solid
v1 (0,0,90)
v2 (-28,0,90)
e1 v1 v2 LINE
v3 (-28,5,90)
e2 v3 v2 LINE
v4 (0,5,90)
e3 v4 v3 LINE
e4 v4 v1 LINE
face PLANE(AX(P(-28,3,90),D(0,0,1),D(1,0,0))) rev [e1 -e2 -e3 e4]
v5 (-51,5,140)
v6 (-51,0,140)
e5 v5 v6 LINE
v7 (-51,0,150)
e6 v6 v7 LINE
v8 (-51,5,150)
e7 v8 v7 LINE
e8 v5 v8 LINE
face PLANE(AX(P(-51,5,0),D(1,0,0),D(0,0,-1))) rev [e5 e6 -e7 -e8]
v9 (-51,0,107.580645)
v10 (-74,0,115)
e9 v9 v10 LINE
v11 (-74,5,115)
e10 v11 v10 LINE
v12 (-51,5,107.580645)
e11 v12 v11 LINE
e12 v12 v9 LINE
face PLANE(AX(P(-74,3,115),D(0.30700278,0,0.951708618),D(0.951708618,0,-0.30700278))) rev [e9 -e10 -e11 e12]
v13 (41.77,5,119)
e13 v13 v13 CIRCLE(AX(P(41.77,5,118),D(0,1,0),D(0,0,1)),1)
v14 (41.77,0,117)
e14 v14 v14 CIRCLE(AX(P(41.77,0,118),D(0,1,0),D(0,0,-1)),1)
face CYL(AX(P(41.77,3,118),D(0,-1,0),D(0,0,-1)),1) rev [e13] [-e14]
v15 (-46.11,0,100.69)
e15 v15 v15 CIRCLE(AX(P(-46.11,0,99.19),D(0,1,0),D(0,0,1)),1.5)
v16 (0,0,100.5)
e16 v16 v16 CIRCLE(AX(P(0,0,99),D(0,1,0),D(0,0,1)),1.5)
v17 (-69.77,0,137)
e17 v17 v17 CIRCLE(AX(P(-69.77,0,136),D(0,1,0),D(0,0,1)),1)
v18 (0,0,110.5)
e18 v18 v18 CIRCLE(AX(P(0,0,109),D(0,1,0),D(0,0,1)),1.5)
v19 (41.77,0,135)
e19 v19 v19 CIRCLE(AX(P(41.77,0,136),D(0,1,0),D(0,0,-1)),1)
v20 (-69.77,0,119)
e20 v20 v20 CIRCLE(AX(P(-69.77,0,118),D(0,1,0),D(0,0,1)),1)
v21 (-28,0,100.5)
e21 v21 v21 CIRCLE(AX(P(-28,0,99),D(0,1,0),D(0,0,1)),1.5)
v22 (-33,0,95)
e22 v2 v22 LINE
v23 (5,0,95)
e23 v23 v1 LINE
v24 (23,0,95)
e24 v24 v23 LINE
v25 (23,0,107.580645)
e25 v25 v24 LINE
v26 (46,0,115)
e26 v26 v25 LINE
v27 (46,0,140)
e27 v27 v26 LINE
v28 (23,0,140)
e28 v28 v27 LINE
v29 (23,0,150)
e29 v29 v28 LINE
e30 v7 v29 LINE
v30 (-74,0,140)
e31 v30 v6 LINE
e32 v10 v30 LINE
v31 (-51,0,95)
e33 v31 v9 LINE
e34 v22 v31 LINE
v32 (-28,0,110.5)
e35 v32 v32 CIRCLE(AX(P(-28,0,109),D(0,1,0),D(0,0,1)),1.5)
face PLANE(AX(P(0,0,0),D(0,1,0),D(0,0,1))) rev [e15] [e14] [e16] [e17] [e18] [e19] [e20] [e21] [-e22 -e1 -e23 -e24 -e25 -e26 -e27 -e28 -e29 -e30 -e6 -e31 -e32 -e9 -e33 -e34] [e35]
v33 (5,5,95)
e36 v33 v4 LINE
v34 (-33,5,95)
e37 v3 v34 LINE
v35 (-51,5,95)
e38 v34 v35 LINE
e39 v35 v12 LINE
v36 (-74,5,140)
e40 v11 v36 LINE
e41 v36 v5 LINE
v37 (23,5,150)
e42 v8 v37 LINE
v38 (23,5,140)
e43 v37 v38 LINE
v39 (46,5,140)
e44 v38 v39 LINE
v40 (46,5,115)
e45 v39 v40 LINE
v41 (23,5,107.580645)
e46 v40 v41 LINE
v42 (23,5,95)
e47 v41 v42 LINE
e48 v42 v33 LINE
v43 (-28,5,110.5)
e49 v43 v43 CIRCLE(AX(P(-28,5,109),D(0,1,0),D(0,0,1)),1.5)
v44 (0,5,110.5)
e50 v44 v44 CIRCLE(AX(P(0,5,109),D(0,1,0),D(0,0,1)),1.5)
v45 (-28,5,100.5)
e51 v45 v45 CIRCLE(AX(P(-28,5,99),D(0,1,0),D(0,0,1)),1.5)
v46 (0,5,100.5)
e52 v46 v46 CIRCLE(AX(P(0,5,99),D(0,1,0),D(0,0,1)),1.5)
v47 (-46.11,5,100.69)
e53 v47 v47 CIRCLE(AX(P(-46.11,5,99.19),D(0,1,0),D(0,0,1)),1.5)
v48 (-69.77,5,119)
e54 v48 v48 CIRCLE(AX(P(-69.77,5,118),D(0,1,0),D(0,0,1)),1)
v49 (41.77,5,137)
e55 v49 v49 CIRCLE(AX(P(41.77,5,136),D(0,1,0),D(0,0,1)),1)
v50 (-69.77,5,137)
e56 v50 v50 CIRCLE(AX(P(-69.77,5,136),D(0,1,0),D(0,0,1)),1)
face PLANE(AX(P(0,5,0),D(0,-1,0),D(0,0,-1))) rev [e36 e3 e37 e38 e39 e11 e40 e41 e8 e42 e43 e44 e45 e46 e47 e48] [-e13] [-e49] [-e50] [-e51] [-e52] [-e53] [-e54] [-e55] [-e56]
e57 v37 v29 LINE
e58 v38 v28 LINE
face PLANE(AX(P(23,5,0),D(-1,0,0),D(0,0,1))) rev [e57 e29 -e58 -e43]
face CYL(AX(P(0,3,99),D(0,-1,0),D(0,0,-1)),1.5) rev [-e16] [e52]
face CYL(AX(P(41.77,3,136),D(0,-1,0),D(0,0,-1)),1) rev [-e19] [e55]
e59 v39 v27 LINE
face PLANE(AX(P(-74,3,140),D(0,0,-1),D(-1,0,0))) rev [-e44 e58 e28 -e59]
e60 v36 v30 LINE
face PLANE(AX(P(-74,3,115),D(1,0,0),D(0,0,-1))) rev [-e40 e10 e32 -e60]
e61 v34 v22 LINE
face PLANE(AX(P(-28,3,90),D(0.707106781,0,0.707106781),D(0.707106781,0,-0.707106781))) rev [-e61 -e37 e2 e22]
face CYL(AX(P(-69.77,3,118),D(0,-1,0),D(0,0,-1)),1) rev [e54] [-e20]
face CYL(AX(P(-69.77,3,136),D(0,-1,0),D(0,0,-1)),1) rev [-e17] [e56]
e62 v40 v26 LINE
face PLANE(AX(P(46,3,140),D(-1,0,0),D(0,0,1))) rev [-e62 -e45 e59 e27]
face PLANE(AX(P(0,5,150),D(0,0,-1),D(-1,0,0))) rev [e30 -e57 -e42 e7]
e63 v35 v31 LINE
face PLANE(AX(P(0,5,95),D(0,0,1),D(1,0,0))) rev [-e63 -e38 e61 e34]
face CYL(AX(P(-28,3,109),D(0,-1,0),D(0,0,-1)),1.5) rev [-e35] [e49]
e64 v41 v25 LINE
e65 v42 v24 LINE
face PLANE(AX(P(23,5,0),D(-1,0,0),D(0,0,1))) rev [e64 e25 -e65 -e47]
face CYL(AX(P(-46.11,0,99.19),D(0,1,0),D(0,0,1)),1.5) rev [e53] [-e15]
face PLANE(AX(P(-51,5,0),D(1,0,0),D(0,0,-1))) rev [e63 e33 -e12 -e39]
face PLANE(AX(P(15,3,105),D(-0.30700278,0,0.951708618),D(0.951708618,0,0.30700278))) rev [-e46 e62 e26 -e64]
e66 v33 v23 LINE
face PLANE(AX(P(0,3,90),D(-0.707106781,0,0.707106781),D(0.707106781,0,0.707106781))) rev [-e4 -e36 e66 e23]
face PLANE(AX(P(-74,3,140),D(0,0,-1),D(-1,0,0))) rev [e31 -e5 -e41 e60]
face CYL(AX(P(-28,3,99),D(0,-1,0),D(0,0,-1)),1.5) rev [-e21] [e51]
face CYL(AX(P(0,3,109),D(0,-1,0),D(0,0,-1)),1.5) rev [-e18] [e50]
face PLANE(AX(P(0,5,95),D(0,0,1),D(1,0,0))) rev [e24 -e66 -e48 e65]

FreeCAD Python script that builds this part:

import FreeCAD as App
import Part
import Sketcher

V = App.Vector

doc = App.newDocument("Part")
params = doc.addObject("Spreadsheet::Sheet", "Params")
for row, (alias, value) in enumerate([
    ("sketch1_diameter", "2 mm"),
    ("sketch1_diameter2", "3 mm"),
    ("sketch1_width", "120 mm"),
    ("sketch1_width2", "28 mm"),
    ("sketch1_height", "25 mm"),
    ("pad1_length", "3 mm"),
    ("sketch2_diameter", "2 mm"),
    ("sketch2_width", "23 mm"),
    ("sketch2_height", "25 mm"),
    ("pad2_length", "2 mm"),
    ("sketch3_diameter", "3 mm"),
    ("sketch3_width", "74 mm"),
    ("sketch3_width2", "18 mm"),
    ("sketch3_width3", "28 mm"),
    ("sketch3_height", "55 mm"),
    ("pad3_length", "5 mm"),
    ("sketch4_diameter", "3 mm"),
], start=1):
    params.set(f"A{row}", alias)
    params.set(f"B{row}", "=" + value)
    params.setAlias(f"B{row}", alias)

body = doc.addObject("PartDesign::Body", "Body")

sketch1 = body.newObject("Sketcher::SketchObject", "Sketch")
sketch1.AttachmentSupport = (doc.getObject("XZ_Plane"), [""])
sketch1.MapMode = "FlatFace"
sketch1.addGeometry([
    Part.LineSegment(V(-28, 90, 0), V(-43, 105, 0)),
    Part.LineSegment(V(-43, 105, 0), V(-74, 115, 0)),
    Part.LineSegment(V(-74, 115, 0), V(-74, 140, 0)),
    Part.LineSegment(V(-74, 140, 0), V(46, 140, 0)),
    Part.LineSegment(V(46, 140, 0), V(46, 115, 0)),
    Part.LineSegment(V(46, 115, 0), V(15, 105, 0)),
    Part.LineSegment(V(15, 105, 0), V(0, 90, 0)),
    Part.LineSegment(V(0, 90, 0), V(-28, 90, 0)),
    Part.Circle(V(-69.8, 136, 0), V(0, 0, 1), 1),
    Part.Circle(V(-69.8, 118, 0), V(0, 0, 1), 1),
    Part.Circle(V(41.8, 136, 0), V(0, 0, 1), 1),
    Part.Circle(V(41.8, 118, 0), V(0, 0, 1), 1),
    Part.Circle(V(-28, 109, 0), V(0, 0, 1), 1.5),
    Part.Circle(V(-28, 99, 0), V(0, 0, 1), 1.5),
    Part.Circle(V(0, 109, 0), V(0, 0, 1), 1.5),
    Part.Circle(V(0, 99, 0), V(0, 0, 1), 1.5),
], False)
sketch1.addConstraint([
    Sketcher.Constraint("Coincident", 0, 2, 1, 1),
    Sketcher.Constraint("Coincident", 1, 2, 2, 1),
    Sketcher.Constraint("Coincident", 2, 2, 3, 1),
    Sketcher.Constraint("Coincident", 3, 2, 4, 1),
    Sketcher.Constraint("Coincident", 4, 2, 5, 1),
    Sketcher.Constraint("Coincident", 5, 2, 6, 1),
    Sketcher.Constraint("Coincident", 6, 2, 7, 1),
    Sketcher.Constraint("Coincident", 7, 2, 0, 1),
    Sketcher.Constraint("Vertical", 2),
    Sketcher.Constraint("Horizontal", 3),
    Sketcher.Constraint("Vertical", 4),
    Sketcher.Constraint("Horizontal", 7),
    Sketcher.Constraint("Equal", 8, 9),
    Sketcher.Constraint("Equal", 9, 10),
    Sketcher.Constraint("Equal", 10, 11),
    Sketcher.Constraint("Equal", 12, 13),
    Sketcher.Constraint("Equal", 13, 14),
    Sketcher.Constraint("Equal", 14, 15),
    Sketcher.Constraint("PointOnObject", 14, 3, -2),
    Sketcher.Constraint("PointOnObject", 15, 3, -2),
    Sketcher.Constraint("PointOnObject", 6, 2, -2),
    Sketcher.Constraint("Perpendicular", 0, 6),
    Sketcher.Constraint("Horizontal", 8, 3, 10, 3),
    Sketcher.Constraint("Horizontal", 9, 3, 11, 3),
    Sketcher.Constraint("Horizontal", 12, 3, 14, 3),
    Sketcher.Constraint("Horizontal", 13, 3, 15, 3),
    Sketcher.Constraint("Horizontal", 1, 2, 4, 2),
    Sketcher.Constraint("Horizontal", 0, 2, 5, 2),
    Sketcher.Constraint("Vertical", 8, 3, 9, 3),
    Sketcher.Constraint("Vertical", 10, 3, 11, 3),
    Sketcher.Constraint("Vertical", 12, 3, 13, 3),
    Sketcher.Constraint("Vertical", 13, 3, 7, 2),
    Sketcher.Constraint("Equal", 1, 5),
    Sketcher.Constraint("Equal", 0, 6),
    Sketcher.Constraint("Diameter", 8, 2.0),
    Sketcher.Constraint("Diameter", 12, 3.0),
    Sketcher.Constraint("DistanceX", 3, 1, 3, 2, 120.0),
    Sketcher.Constraint("DistanceX", 7, 2, 7, 1, 28.0),
    Sketcher.Constraint("DistanceY", 2, 1, 2, 2, 25.0),
    Sketcher.Constraint("DistanceY", -1, 1, 8, 3, 136.0),
    Sketcher.Constraint("DistanceY", -1, 1, 9, 3, 118.0),
    Sketcher.Constraint("DistanceY", -1, 1, 12, 3, 109.0),
    Sketcher.Constraint("DistanceY", -1, 1, 13, 3, 99.0),
    Sketcher.Constraint("DistanceX", 0, 2, -1, 1, 43.0),
    Sketcher.Constraint("DistanceY", -1, 1, 0, 2, 105.0),
    Sketcher.Constraint("DistanceY", -1, 1, 1, 2, 115.0),
    Sketcher.Constraint("DistanceX", 8, 3, -1, 1, 69.77),
    Sketcher.Constraint("DistanceX", -1, 1, 10, 3, 41.77),
])
sketch1.setExpression("Constraints[34]", "Params.sketch1_diameter")
sketch1.setExpression("Constraints[35]", "Params.sketch1_diameter2")
sketch1.setExpression("Constraints[36]", "Params.sketch1_width")
sketch1.setExpression("Constraints[37]", "Params.sketch1_width2")
sketch1.setExpression("Constraints[38]", "Params.sketch1_height")
pad1 = body.newObject("PartDesign::Pad", "Pad")
pad1.Profile = sketch1
pad1.setExpression("Length", "Params.pad1_length")
pad1.Reversed = True

sketch2 = body.newObject("Sketcher::SketchObject", "Sketch001")
sketch2.AttachmentSupport = (doc.getObject("XZ_Plane"), [""])
sketch2.MapMode = "FlatFace"
sketch2.AttachmentOffset = App.Placement(V(0, 0, -3), App.Rotation())
sketch2.addGeometry([
    Part.LineSegment(V(-74, 115, 0), V(-74, 140, 0)),
    Part.LineSegment(V(-74, 140, 0), V(-51, 140, 0)),
    Part.LineSegment(V(-51, 140, 0), V(-51, 107.6, 0)),
    Part.LineSegment(V(-51, 107.6, 0), V(-74, 115, 0)),
    Part.Circle(V(-69.8, 136, 0), V(0, 0, 1), 1),
    Part.Circle(V(-69.8, 118, 0), V(0, 0, 1), 1),
    Part.LineSegment(V(46, 140, 0), V(46, 115, 0)),
    Part.LineSegment(V(46, 115, 0), V(23, 107.6, 0)),
    Part.LineSegment(V(23, 107.6, 0), V(23, 140, 0)),
    Part.LineSegment(V(23, 140, 0), V(46, 140, 0)),
    Part.Circle(V(41.8, 136, 0), V(0, 0, 1), 1),
    Part.Circle(V(41.8, 118, 0), V(0, 0, 1), 1),
], False)
sketch2.addConstraint([
    Sketcher.Constraint("Coincident", 0, 2, 1, 1),
    Sketcher.Constraint("Coincident", 1, 2, 2, 1),
    Sketcher.Constraint("Coincident", 2, 2, 3, 1),
    Sketcher.Constraint("Coincident", 3, 2, 0, 1),
    Sketcher.Constraint("Coincident", 6, 2, 7, 1),
    Sketcher.Constraint("Coincident", 7, 2, 8, 1),
    Sketcher.Constraint("Coincident", 8, 2, 9, 1),
    Sketcher.Constraint("Coincident", 9, 2, 6, 1),
    Sketcher.Constraint("Vertical", 0),
    Sketcher.Constraint("Horizontal", 1),
    Sketcher.Constraint("Vertical", 2),
    Sketcher.Constraint("Vertical", 6),
    Sketcher.Constraint("Vertical", 8),
    Sketcher.Constraint("Horizontal", 9),
    Sketcher.Constraint("Equal", 4, 5),
    Sketcher.Constraint("Equal", 5, 10),
    Sketcher.Constraint("Equal", 10, 11),
    Sketcher.Constraint("Horizontal", 4, 3, 10, 3),
    Sketcher.Constraint("Horizontal", 5, 3, 11, 3),
    Sketcher.Constraint("Horizontal", 3, 2, 6, 2),
    Sketcher.Constraint("Horizontal", 2, 2, 7, 2),
    Sketcher.Constraint("Horizontal", 1, 2, 8, 2),
    Sketcher.Constraint("Vertical", 4, 3, 5, 3),
    Sketcher.Constraint("Vertical", 10, 3, 11, 3),
    Sketcher.Constraint("Equal", 1, 9),
    Sketcher.Constraint("Diameter", 4, 2.0),
    Sketcher.Constraint("DistanceX", 1, 1, 1, 2, 23.0),
    Sketcher.Constraint("DistanceY", 0, 1, 0, 2, 25.0),
    Sketcher.Constraint("DistanceY", -1, 1, 4, 3, 136.0),
    Sketcher.Constraint("DistanceY", -1, 1, 5, 3, 118.0),
    Sketcher.Constraint("DistanceX", 0, 2, -1, 1, 74.0),
    Sketcher.Constraint("DistanceY", -1, 1, 0, 2, 140.0),
    Sketcher.Constraint("DistanceX", -1, 1, 6, 2, 46.0),
    Sketcher.Constraint("DistanceX", 4, 3, -1, 1, 69.77),
    Sketcher.Constraint("DistanceX", -1, 1, 10, 3, 41.77),
    Sketcher.Constraint("Distance", 3, 24.167061),
])
sketch2.setExpression("Constraints[25]", "Params.sketch2_diameter")
sketch2.setExpression("Constraints[26]", "Params.sketch2_width")
sketch2.setExpression("Constraints[27]", "Params.sketch2_height")
pad2 = body.newObject("PartDesign::Pad", "Pad001")
pad2.Profile = sketch2
pad2.setExpression("Length", "Params.pad2_length")
pad2.Reversed = True

sketch3 = body.newObject("Sketcher::SketchObject", "Sketch002")
sketch3.AttachmentSupport = (doc.getObject("XZ_Plane"), [""])
sketch3.MapMode = "FlatFace"
sketch3.addGeometry([
    Part.LineSegment(V(-51, 150, 0), V(23, 150, 0)),
    Part.LineSegment(V(23, 150, 0), V(23, 95, 0)),
    Part.LineSegment(V(23, 95, 0), V(5, 95, 0)),
    Part.LineSegment(V(5, 95, 0), V(0, 90, 0)),
    Part.LineSegment(V(0, 90, 0), V(-28, 90, 0)),
    Part.LineSegment(V(-28, 90, 0), V(-33, 95, 0)),
    Part.LineSegment(V(-33, 95, 0), V(-51, 95, 0)),
    Part.LineSegment(V(-51, 95, 0), V(-51, 150, 0)),
    Part.Circle(V(-28, 109, 0), V(0, 0, 1), 1.5),
    Part.Circle(V(0, 109, 0), V(0, 0, 1), 1.5),
    Part.Circle(V(-28, 99, 0), V(0, 0, 1), 1.5),
    Part.Circle(V(0, 99, 0), V(0, 0, 1), 1.5),
], False)
sketch3.addConstraint([
    Sketcher.Constraint("Coincident", 0, 2, 1, 1),
    Sketcher.Constraint("Coincident", 1, 2, 2, 1),
    Sketcher.Constraint("Coincident", 2, 2, 3, 1),
    Sketcher.Constraint("Coincident", 3, 2, 4, 1),
    Sketcher.Constraint("Coincident", 4, 2, 5, 1),
    Sketcher.Constraint("Coincident", 5, 2, 6, 1),
    Sketcher.Constraint("Coincident", 6, 2, 7, 1),
    Sketcher.Constraint("Coincident", 7, 2, 0, 1),
    Sketcher.Constraint("Horizontal", 0),
    Sketcher.Constraint("Vertical", 1),
    Sketcher.Constraint("Horizontal", 2),
    Sketcher.Constraint("Horizontal", 4),
    Sketcher.Constraint("Horizontal", 6),
    Sketcher.Constraint("Vertical", 7),
    Sketcher.Constraint("Equal", 8, 9),
    Sketcher.Constraint("Equal", 9, 10),
    Sketcher.Constraint("Equal", 10, 11),
    Sketcher.Constraint("PointOnObject", 9, 3, -2),
    Sketcher.Constraint("PointOnObject", 11, 3, -2),
    Sketcher.Constraint("PointOnObject", 3, 2, -2),
    Sketcher.Constraint("Perpendicular", 3, 5),
    Sketcher.Constraint("Horizontal", 8, 3, 9, 3),
    Sketcher.Constraint("Horizontal", 10, 3, 11, 3),
    Sketcher.Constraint("Horizontal", 2, 2, 5, 2),
    Sketcher.Constraint("Vertical", 8, 3, 10, 3),
    Sketcher.Constraint("Vertical", 10, 3, 4, 2),
    Sketcher.Constraint("Equal", 2, 6),
    Sketcher.Constraint("Equal", 3, 5),
    Sketcher.Constraint("Diameter", 8, 3.0),
    Sketcher.Constraint("DistanceX", 0, 1, 0, 2, 74.0),
    Sketcher.Constraint("DistanceX", 2, 2, 2, 1, 18.0),
    Sketcher.Constraint("DistanceX", 4, 2, 4, 1, 28.0),
    Sketcher.Constraint("DistanceY", 1, 2, 1, 1, 55.0),
    Sketcher.Constraint("DistanceY", -1, 1, 8, 3, 109.0),
    Sketcher.Constraint("DistanceY", -1, 1, 10, 3, 99.0),
    Sketcher.Constraint("DistanceY", -1, 1, 0, 2, 150.0),
])
sketch3.setExpression("Constraints[28]", "Params.sketch3_diameter")
sketch3.setExpression("Constraints[29]", "Params.sketch3_width")
sketch3.setExpression("Constraints[30]", "Params.sketch3_width2")
sketch3.setExpression("Constraints[31]", "Params.sketch3_width3")
sketch3.setExpression("Constraints[32]", "Params.sketch3_height")
pad3 = body.newObject("PartDesign::Pad", "Pad002")
pad3.Profile = sketch3
pad3.setExpression("Length", "Params.pad3_length")
pad3.Reversed = True

sketch4 = body.newObject("Sketcher::SketchObject", "Sketch003")
sketch4.AttachmentSupport = (doc.getObject("XZ_Plane"), [""])
sketch4.MapMode = "FlatFace"
sketch4.AttachmentOffset = App.Placement(V(0, 0, -5), App.Rotation())
sketch4.addGeometry(Part.Circle(V(-46.1, 99.2, 0), V(0, 0, 1), 1.5), False)
sketch4.addConstraint([
    Sketcher.Constraint("Diameter", 0, 3.0),
    Sketcher.Constraint("DistanceX", 0, 3, -1, 1, 46.11),
    Sketcher.Constraint("DistanceY", -1, 1, 0, 3, 99.19),
])
sketch4.setExpression("Constraints[0]", "Params.sketch4_diameter")
pocket1 = body.newObject("PartDesign::Pocket", "Pocket")
pocket1.Profile = sketch4
pocket1.Type = "ThroughAll"
pocket1.Reversed = True

doc.recompute()
